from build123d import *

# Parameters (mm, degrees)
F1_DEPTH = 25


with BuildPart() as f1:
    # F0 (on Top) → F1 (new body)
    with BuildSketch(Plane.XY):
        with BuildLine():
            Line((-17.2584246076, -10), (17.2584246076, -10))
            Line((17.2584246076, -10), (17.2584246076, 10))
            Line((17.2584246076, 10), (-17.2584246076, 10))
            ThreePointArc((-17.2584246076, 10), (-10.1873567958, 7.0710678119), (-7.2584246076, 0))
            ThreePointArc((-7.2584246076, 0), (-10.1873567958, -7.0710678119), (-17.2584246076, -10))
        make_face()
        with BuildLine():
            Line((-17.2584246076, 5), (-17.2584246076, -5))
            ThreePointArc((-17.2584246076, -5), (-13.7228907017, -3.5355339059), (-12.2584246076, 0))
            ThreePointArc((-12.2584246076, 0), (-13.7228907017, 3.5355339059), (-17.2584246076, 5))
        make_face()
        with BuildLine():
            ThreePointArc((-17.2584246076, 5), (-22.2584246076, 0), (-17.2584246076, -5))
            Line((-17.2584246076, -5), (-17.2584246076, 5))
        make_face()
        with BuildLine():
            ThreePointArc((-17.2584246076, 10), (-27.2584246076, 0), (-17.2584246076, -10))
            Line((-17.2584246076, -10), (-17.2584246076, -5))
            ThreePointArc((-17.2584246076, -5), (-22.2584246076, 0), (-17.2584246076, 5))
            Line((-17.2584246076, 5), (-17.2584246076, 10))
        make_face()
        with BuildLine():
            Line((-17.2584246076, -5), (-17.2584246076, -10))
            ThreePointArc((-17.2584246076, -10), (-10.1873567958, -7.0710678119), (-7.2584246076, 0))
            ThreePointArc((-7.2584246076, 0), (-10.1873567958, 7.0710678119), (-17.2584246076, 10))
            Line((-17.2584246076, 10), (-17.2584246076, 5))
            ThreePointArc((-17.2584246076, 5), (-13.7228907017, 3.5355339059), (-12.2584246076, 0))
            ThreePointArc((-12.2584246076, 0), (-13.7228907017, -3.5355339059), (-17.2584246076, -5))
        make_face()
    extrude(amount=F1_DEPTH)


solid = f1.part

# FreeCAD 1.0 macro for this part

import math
import FreeCAD as App
import Part
import Sketcher

V = App.Vector

doc = App.newDocument("Part")
body = doc.addObject("PartDesign::Body", "Body")

sketch1 = body.newObject("Sketcher::SketchObject", "Sketch")
sketch1.AttachmentSupport = (doc.getObject("XY_Plane"), [""])
sketch1.MapMode = "FlatFace"
sketch1.addGeometry([
    Part.LineSegment(V(-17, -10, 0), V(17, -10, 0)),
    Part.LineSegment(V(17, -10, 0), V(17, 10, 0)),
    Part.LineSegment(V(17, 10, 0), V(-17, 10, 0)),
    Part.ArcOfCircle(Part.Circle(V(-17, 0, 0), V(0, 0, 1), 10), math.radians(90), math.radians(270)),
], False)
sketch1.addConstraint([
    Sketcher.Constraint("Coincident", 0, 2, 1, 1),
    Sketcher.Constraint("Coincident", 1, 2, 2, 1),
    Sketcher.Constraint("Tangent", 2, 2, 3, 1),
    Sketcher.Constraint("Tangent", 3, 2, 0, 1),
    Sketcher.Constraint("Horizontal", 0),
    Sketcher.Constraint("Vertical", 1),
    Sketcher.Constraint("Horizontal", 2),
    Sketcher.Constraint("Symmetric", 0, 2, 2, 2, -1, 1),
    Sketcher.Constraint("Radius", 3, 10.0),
    Sketcher.Constraint("DistanceX", 0, 1, 0, 2, 34.516849),
])
pad1 = body.newObject("PartDesign::Pad", "Pad")
pad1.Profile = sketch1
pad1.Length = 25

doc.recompute()
